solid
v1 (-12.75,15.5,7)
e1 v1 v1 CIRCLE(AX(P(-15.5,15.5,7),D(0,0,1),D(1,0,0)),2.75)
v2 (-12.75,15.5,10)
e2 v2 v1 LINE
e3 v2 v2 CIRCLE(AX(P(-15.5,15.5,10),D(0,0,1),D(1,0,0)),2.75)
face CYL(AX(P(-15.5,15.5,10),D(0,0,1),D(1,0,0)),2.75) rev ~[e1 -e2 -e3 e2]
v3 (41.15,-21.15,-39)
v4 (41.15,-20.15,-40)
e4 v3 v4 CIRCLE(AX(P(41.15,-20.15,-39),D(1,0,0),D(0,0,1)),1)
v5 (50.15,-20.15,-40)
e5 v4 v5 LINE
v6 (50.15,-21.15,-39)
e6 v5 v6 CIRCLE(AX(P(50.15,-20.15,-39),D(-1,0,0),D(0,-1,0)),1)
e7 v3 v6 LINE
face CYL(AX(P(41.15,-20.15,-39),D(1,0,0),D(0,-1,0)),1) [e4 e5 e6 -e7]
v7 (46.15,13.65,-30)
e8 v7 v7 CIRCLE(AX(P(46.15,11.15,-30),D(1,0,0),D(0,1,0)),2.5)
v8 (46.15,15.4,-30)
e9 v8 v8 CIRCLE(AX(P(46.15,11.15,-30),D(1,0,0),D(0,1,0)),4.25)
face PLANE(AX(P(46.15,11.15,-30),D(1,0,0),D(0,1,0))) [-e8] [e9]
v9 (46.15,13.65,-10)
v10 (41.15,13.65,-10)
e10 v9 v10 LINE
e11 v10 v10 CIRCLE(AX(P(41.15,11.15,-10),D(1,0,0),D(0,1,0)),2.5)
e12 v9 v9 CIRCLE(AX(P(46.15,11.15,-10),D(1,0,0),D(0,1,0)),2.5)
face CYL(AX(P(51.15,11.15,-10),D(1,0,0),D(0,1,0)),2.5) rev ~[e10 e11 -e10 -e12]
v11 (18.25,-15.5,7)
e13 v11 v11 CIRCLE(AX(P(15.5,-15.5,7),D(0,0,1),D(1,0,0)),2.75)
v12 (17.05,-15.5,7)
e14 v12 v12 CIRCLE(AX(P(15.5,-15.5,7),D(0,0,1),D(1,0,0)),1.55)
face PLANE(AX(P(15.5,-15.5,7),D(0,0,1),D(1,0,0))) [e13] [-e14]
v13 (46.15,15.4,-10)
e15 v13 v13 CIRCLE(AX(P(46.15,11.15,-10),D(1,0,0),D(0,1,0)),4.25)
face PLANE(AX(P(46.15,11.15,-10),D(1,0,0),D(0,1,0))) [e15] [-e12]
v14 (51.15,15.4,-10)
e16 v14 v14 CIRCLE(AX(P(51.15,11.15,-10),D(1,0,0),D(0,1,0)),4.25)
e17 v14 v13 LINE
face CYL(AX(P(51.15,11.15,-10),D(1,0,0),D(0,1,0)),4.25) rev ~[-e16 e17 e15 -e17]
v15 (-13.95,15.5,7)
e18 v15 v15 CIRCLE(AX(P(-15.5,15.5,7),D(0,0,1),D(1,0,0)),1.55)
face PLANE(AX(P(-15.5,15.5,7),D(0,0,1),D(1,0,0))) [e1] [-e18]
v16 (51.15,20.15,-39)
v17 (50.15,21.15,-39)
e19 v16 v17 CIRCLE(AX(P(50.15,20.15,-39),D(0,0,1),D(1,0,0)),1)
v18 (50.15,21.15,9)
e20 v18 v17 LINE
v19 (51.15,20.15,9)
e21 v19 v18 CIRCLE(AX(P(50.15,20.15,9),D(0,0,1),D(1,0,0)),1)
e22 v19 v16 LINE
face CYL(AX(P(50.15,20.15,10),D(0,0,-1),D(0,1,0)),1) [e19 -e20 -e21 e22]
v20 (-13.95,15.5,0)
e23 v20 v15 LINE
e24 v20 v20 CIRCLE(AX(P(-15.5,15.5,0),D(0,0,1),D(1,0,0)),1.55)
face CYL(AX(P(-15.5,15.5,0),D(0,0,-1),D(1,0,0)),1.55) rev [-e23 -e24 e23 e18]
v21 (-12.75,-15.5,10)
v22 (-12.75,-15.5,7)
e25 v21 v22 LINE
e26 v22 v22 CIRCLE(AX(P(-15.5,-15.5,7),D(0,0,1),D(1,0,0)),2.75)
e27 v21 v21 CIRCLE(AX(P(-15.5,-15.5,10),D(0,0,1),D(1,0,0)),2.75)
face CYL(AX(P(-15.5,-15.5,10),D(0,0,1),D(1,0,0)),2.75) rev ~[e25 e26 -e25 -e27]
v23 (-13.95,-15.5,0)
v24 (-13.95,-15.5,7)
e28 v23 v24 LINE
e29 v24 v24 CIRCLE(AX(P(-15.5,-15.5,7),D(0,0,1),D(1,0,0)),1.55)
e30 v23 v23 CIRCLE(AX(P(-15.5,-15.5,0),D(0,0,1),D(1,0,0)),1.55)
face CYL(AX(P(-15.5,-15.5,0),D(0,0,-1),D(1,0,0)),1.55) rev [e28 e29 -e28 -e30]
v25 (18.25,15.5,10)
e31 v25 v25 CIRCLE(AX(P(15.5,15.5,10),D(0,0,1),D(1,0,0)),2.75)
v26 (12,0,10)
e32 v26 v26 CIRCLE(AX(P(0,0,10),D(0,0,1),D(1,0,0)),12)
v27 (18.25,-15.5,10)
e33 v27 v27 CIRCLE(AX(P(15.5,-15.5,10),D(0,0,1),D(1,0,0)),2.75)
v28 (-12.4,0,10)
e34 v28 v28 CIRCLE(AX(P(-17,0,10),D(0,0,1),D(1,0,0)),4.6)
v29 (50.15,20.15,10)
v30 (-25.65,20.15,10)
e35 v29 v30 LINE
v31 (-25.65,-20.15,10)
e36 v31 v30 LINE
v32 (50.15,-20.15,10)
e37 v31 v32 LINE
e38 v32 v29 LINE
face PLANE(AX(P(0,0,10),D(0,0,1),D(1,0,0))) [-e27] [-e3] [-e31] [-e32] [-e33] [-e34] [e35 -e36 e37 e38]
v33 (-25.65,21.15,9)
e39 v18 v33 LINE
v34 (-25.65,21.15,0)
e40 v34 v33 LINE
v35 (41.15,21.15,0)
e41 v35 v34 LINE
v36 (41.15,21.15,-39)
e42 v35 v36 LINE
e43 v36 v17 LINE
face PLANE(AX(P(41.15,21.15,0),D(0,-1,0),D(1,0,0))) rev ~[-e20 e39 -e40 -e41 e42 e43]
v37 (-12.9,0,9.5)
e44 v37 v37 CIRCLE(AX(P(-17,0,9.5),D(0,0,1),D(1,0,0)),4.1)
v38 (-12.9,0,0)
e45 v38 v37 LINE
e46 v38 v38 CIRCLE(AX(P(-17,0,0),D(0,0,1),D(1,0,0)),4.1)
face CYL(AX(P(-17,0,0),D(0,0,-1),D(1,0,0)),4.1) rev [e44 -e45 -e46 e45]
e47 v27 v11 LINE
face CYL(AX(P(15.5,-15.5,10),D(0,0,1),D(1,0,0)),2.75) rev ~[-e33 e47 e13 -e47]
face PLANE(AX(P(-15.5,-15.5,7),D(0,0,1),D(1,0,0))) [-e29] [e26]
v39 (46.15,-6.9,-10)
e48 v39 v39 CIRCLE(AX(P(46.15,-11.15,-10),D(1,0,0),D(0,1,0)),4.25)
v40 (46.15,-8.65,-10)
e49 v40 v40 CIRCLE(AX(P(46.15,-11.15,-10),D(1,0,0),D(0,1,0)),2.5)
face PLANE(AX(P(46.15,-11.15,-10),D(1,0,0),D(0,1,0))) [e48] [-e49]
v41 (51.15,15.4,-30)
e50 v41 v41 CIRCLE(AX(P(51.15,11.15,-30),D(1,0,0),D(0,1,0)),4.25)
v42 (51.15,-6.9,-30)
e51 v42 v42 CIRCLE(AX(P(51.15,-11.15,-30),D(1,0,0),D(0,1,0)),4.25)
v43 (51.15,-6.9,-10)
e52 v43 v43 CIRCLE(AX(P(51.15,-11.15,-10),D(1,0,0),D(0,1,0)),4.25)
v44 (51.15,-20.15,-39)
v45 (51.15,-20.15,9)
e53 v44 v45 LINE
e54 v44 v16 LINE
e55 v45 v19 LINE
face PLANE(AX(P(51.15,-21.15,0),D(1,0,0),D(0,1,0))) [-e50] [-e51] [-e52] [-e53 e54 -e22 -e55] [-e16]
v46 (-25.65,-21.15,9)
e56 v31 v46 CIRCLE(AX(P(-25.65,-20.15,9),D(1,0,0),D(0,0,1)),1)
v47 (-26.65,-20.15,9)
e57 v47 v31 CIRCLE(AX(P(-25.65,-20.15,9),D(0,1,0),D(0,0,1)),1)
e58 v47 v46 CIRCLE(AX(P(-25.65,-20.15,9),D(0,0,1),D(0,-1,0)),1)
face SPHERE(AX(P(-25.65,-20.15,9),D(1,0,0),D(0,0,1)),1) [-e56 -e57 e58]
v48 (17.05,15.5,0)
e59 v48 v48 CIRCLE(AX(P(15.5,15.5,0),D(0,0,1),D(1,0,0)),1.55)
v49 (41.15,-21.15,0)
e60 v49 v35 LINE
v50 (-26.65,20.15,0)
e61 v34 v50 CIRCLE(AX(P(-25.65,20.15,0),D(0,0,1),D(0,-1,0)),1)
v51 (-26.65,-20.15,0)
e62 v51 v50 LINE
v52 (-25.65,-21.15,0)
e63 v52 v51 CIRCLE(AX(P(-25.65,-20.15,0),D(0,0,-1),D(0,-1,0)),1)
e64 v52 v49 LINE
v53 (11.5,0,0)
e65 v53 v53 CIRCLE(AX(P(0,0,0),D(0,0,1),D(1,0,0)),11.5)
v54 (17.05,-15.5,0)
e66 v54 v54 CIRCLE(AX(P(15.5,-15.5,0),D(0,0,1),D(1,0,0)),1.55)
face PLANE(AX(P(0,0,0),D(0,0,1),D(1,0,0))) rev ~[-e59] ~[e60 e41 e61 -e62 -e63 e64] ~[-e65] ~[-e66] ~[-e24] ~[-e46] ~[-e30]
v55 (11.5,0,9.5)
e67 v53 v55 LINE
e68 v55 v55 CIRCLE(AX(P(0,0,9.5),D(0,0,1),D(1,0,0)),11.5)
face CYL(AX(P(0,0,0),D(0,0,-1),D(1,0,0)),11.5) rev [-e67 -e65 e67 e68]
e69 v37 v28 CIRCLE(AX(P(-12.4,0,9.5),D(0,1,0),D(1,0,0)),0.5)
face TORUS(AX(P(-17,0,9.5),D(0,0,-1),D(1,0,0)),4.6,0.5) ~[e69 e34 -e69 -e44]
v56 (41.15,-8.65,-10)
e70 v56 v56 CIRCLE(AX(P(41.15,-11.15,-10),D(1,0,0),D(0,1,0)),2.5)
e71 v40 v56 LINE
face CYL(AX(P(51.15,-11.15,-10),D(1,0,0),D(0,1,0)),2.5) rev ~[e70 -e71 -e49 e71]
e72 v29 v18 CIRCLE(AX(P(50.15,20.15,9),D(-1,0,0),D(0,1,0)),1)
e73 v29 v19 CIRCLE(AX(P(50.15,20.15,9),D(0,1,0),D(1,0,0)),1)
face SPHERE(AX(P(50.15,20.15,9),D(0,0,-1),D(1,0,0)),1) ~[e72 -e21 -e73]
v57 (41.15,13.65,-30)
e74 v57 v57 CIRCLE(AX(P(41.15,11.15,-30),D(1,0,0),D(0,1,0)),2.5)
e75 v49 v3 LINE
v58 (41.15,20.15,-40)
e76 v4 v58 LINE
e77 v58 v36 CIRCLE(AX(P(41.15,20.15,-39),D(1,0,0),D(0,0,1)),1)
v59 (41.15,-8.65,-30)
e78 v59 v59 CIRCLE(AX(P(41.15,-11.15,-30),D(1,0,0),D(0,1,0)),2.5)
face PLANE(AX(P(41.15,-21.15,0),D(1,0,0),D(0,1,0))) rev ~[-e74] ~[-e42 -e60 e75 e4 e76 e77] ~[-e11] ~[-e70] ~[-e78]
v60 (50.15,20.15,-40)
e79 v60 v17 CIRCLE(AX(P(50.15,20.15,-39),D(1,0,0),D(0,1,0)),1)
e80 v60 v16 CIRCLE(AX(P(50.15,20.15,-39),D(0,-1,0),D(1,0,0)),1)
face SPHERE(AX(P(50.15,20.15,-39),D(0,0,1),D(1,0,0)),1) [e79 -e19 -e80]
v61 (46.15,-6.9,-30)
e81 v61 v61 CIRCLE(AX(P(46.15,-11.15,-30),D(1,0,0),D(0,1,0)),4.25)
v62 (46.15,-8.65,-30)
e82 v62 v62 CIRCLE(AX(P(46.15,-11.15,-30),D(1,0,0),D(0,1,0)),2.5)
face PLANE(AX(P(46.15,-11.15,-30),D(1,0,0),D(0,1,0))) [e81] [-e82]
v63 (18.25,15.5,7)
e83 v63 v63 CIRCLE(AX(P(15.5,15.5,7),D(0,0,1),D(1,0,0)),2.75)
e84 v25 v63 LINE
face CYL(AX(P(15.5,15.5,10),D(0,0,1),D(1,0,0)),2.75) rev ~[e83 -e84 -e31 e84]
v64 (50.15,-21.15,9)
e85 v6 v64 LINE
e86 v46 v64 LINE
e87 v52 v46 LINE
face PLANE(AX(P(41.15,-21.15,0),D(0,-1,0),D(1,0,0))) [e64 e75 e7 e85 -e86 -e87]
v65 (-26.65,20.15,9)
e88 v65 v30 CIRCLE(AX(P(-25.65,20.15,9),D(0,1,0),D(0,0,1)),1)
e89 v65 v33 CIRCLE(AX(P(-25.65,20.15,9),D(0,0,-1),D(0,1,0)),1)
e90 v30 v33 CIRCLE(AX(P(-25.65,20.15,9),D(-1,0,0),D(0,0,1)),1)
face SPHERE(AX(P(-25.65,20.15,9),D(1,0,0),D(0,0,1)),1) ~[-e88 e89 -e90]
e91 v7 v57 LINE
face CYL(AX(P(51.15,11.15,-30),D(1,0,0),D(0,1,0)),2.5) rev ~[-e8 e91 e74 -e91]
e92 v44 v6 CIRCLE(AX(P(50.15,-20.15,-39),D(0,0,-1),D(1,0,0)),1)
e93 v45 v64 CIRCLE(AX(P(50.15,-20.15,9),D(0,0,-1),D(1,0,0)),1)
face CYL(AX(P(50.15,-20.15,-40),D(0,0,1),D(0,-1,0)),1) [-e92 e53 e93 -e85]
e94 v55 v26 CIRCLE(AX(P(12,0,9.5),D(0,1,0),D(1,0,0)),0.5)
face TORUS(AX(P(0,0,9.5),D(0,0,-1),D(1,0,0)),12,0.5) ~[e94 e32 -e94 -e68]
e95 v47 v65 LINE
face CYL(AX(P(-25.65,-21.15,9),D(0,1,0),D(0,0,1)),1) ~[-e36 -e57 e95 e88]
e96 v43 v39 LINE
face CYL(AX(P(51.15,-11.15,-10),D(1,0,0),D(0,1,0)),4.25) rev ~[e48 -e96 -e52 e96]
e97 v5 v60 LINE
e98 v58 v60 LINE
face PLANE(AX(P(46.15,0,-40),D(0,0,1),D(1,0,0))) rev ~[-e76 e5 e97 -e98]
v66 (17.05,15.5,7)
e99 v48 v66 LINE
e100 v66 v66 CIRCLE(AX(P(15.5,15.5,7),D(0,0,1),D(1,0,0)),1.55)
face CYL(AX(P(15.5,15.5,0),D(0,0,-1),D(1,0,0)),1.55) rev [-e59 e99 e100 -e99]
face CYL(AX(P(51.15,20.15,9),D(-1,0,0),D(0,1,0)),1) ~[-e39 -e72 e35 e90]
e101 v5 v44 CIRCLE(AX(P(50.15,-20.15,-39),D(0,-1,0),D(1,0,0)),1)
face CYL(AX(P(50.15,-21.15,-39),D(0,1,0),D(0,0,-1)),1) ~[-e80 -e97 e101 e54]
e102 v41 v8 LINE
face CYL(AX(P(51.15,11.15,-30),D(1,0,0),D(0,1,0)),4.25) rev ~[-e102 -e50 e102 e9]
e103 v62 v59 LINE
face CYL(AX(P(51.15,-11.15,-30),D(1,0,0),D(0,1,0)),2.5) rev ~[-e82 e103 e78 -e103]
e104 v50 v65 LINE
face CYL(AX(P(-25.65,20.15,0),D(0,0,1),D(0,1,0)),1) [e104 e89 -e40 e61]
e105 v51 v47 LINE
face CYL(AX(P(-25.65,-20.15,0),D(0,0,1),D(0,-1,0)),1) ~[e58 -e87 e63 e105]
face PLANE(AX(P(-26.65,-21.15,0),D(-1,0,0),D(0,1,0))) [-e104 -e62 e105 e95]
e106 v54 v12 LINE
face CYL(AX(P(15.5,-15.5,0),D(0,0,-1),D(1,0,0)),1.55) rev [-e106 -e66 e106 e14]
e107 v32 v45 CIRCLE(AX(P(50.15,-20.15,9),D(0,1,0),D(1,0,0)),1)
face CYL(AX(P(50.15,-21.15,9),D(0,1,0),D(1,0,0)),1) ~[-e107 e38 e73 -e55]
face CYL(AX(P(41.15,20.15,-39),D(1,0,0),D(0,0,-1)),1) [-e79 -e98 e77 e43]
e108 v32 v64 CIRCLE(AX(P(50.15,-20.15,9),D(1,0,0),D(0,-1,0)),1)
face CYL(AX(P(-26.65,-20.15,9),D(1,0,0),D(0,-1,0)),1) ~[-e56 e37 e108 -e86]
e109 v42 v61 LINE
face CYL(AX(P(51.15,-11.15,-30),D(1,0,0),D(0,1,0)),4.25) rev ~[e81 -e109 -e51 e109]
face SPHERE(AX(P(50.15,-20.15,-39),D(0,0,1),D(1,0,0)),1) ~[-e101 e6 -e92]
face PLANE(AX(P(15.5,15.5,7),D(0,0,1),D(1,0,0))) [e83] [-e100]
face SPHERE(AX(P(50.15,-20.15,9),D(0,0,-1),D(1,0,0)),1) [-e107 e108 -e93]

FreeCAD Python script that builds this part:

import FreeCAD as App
import Part
import Sketcher


def edges_at(feature, points):
    """Names of the edges that pass closest to the given points."""
    edges = feature.Shape.Edges
    near = lambda p: min(range(len(edges)), key=lambda i: edges[i].distToShape(Part.Vertex(*p))[0])
    return sorted({f"Edge{near(p) + 1}" for p in points})


def add_polygon(sketch, points):
    """Adds a closed chain of lines whose ends are joined by coincident constraints."""
    first, n = sketch.GeometryCount, len(points)
    for a, b in zip(points, points[1:] + points[:1]):
        sketch.addGeometry(Part.LineSegment(App.Vector(*a, 0), App.Vector(*b, 0)), False)
    for i in range(n):
        sketch.addConstraint(Sketcher.Constraint("Coincident", first + i, 2, first + (i + 1) % n, 1))

doc = App.newDocument("Part")
body = doc.addObject("PartDesign::Body", "Body")

# Sketch on XY plane
sketch1 = body.newObject("Sketcher::SketchObject", "Sketch")
sketch1.AttachmentSupport = (doc.getObject("XY_Plane"), [""])
sketch1.MapMode = "FlatFace"
add_polygon(sketch1, [(-26.6, 21.1), (-26.6, -21.1), (51.1, -21.1), (51.1, 21.1)])  # lines 0-3
sketch1.addGeometry(Part.Circle(App.Vector(-15.5, -15.5, 0), App.Vector(0, 0, 1), 1.6), False)  # 4
sketch1.addGeometry(Part.Circle(App.Vector(15.5, -15.5, 0), App.Vector(0, 0, 1), 1.6), False)  # 5
sketch1.addGeometry(Part.Circle(App.Vector(-17, 0, 0), App.Vector(0, 0, 1), 4.1), False)  # 6
sketch1.addGeometry(Part.Circle(App.Vector(-15.5, 15.5, 0), App.Vector(0, 0, 1), 1.6), False)  # 7
sketch1.addGeometry(Part.Circle(App.Vector(0, 0, 0), App.Vector(0, 0, 1), 11.5), False)  # 8
sketch1.addGeometry(Part.Circle(App.Vector(15.5, 15.5, 0), App.Vector(0, 0, 1), 1.6), False)  # 9
sketch1.addConstraint([
    Sketcher.Constraint("Vertical", 0),
    Sketcher.Constraint("Horizontal", 1),
    Sketcher.Constraint("Vertical", 2),
    Sketcher.Constraint("Horizontal", 3),
    Sketcher.Constraint("Coincident", 8, 3, -1, 1),
    Sketcher.Constraint("Equal", 4, 5),
    Sketcher.Constraint("Equal", 5, 7),
    Sketcher.Constraint("Equal", 7, 9),
    Sketcher.Constraint("Symmetric", 5, 3, 7, 3, -1, 1),
    Sketcher.Constraint("Symmetric", 4, 3, 9, 3, -1, 1),
    Sketcher.Constraint("Symmetric", 4, 3, 5, 3, -2),
    Sketcher.Constraint("PointOnObject", 6, 3, -1),
    Sketcher.Constraint("Diameter", 8, 23.0),
    Sketcher.Constraint("Diameter", 4, 3.1),
    Sketcher.Constraint("Diameter", 6, 8.2),
    Sketcher.Constraint("DistanceX", 1, 1, 1, 2, 77.8),
    Sketcher.Constraint("DistanceY", 0, 2, 0, 1, 42.3),
    Sketcher.Constraint("DistanceX", 6, 3, -1, 1, 17.0),
    Sketcher.Constraint("DistanceX", 4, 3, 5, 3, 31.0),
    Sketcher.Constraint("DistanceY", 4, 3, 7, 3, 31.0),
    Sketcher.Constraint("DistanceX", 0, 2, -1, 1, 26.65),
    Sketcher.Constraint("DistanceY", 0, 2, -1, 1, 21.15),
])
pad1 = body.newObject("PartDesign::Pad", "Pad")
pad1.Profile = sketch1
pad1.Length = 10

# Sketch on XY plane
sketch2 = body.newObject("Sketcher::SketchObject", "Sketch001")
sketch2.AttachmentSupport = (doc.getObject("XY_Plane"), [""])
sketch2.MapMode = "FlatFace"
add_polygon(sketch2, [(41, 21), (41, -21), (51, -21), (51, 21)])  # lines 0-3
sketch2.addConstraint([
    Sketcher.Constraint("Vertical", 0),
    Sketcher.Constraint("Horizontal", 1),
    Sketcher.Constraint("Vertical", 2),
    Sketcher.Constraint("Horizontal", 3),
    Sketcher.Constraint("DistanceX", 1, 1, 1, 2, 10.0),
    Sketcher.Constraint("DistanceY", 0, 2, 0, 1, 42.3),
    Sketcher.Constraint("DistanceX", -1, 1, 0, 2, 41.15),
    Sketcher.Constraint("DistanceY", 0, 2, -1, 1, 21.15),
])
pad2 = body.newObject("PartDesign::Pad", "Pad001")
pad2.Profile = sketch2
pad2.Length = 40
pad2.Reversed = True

# Sketch on YZ plane
sketch3 = body.newObject("Sketcher::SketchObject", "Sketch002")
sketch3.AttachmentSupport = (doc.getObject("YZ_Plane"), [""])
sketch3.MapMode = "FlatFace"
sketch3.AttachmentOffset = App.Placement(App.Vector(0, 0, 51.15), App.Rotation())
sketch3.addGeometry([
    Part.Circle(App.Vector(-11.2, -10, 0), App.Vector(0, 0, 1), 2.5),
    Part.Circle(App.Vector(11.2, -10, 0), App.Vector(0, 0, 1), 2.5),
    Part.Circle(App.Vector(11.2, -30, 0), App.Vector(0, 0, 1), 2.5),
    Part.Circle(App.Vector(-11.2, -30, 0), App.Vector(0, 0, 1), 2.5),
], False)
sketch3.addConstraint([
    Sketcher.Constraint("Equal", 0, 1),
    Sketcher.Constraint("Equal", 1, 2),
    Sketcher.Constraint("Equal", 2, 3),
    Sketcher.Constraint("Symmetric", 0, 3, 1, 3, -2),
    Sketcher.Constraint("Symmetric", 2, 3, 3, 3, -2),
    Sketcher.Constraint("Vertical", 1, 3, 2, 3),
    Sketcher.Constraint("Diameter", 0, 5.0),
    Sketcher.Constraint("DistanceY", 0, 3, -1, 1, 10.0),
    Sketcher.Constraint("DistanceY", 2, 3, -1, 1, 30.0),
    Sketcher.Constraint("DistanceX", 0, 3, 1, 3, 22.3),
])
pocket1 = body.newObject("PartDesign::Pocket", "Pocket")
pocket1.Profile = sketch3
pocket1.Type = "ThroughAll"

# Sketch on YZ plane
sketch4 = body.newObject("Sketcher::SketchObject", "Sketch003")
sketch4.AttachmentSupport = (doc.getObject("YZ_Plane"), [""])
sketch4.MapMode = "FlatFace"
sketch4.AttachmentOffset = App.Placement(App.Vector(0, 0, 51.15), App.Rotation())
sketch4.addGeometry([
    Part.Circle(App.Vector(-11.2, -10, 0), App.Vector(0, 0, 1), 4.2),  # 0
    Part.Circle(App.Vector(-11.2, -10, 0), App.Vector(0, 0, 1), 2.5),  # 1
    Part.Circle(App.Vector(11.2, -10, 0), App.Vector(0, 0, 1), 4.2),  # 2
    Part.Circle(App.Vector(11.2, -10, 0), App.Vector(0, 0, 1), 2.5),  # 3
    Part.Circle(App.Vector(11.2, -30, 0), App.Vector(0, 0, 1), 4.2),  # 4
    Part.Circle(App.Vector(11.2, -30, 0), App.Vector(0, 0, 1), 2.5),  # 5
    Part.Circle(App.Vector(-11.2, -30, 0), App.Vector(0, 0, 1), 4.2),  # 6
    Part.Circle(App.Vector(-11.2, -30, 0), App.Vector(0, 0, 1), 2.5),  # 7
], False)
sketch4.addConstraint([
    Sketcher.Constraint("Coincident", 1, 3, 0, 3),
    Sketcher.Constraint("Coincident", 3, 3, 2, 3),
    Sketcher.Constraint("Coincident", 5, 3, 4, 3),
    Sketcher.Constraint("Coincident", 7, 3, 6, 3),
    Sketcher.Constraint("Equal", 0, 2),
    Sketcher.Constraint("Equal", 1, 3),
    Sketcher.Constraint("Equal", 2, 4),
    Sketcher.Constraint("Equal", 3, 5),
    Sketcher.Constraint("Equal", 4, 6),
    Sketcher.Constraint("Equal", 5, 7),
    Sketcher.Constraint("Symmetric", 0, 3, 2, 3, -2),
    Sketcher.Constraint("Symmetric", 4, 3, 6, 3, -2),
    Sketcher.Constraint("Vertical", 3, 3, 4, 3),
    Sketcher.Constraint("Diameter", 1, 5.0),
    Sketcher.Constraint("Diameter", 0, 8.5),
    Sketcher.Constraint("DistanceY", 0, 3, -1, 1, 10.0),
    Sketcher.Constraint("DistanceY", 4, 3, -1, 1, 30.0),
    Sketcher.Constraint("DistanceX", 0, 3, 2, 3, 22.3),
])
pocket2 = body.newObject("PartDesign::Pocket", "Pocket001")
pocket2.Profile = sketch4
pocket2.Length = 5
doc.recompute()

fillet = body.newObject("PartDesign::Fillet", "Fillet")
fillet.Base = (pocket2, edges_at(pocket2, [
    (51.15, -21.15, -15),
    (51.15, 21.15, -15),
    (51.15, 0, -40),
    (51.15, 0, 10),
    (12.25, 21.15, 10),
    (12.25, -21.15, 10),
    (-26.65, 0, 10),
    (-26.65, 21.15, 5),
    (-26.65, -21.15, 5),
    (46.15, 21.15, -40),
    (46.15, -21.15, -40),
]))
fillet.Radius = 1
doc.recompute()

fillet2 = body.newObject("PartDesign::Fillet", "Fillet001")
fillet2.Base = (fillet, edges_at(fillet, [(-21.1, 0, 10), (-11.5, 0, 10)]))
fillet2.Radius = 0.5

# Sketch on XY plane
sketch5 = body.newObject("Sketcher::SketchObject", "Sketch004")
sketch5.AttachmentSupport = (doc.getObject("XY_Plane"), [""])
sketch5.MapMode = "FlatFace"
sketch5.AttachmentOffset = App.Placement(App.Vector(0, 0, 10), App.Rotation())
sketch5.addGeometry([
    Part.Circle(App.Vector(15.5, 15.5, 0), App.Vector(0, 0, 1), 2.8),  # 0
    Part.Circle(App.Vector(15.5, 15.5, 0), App.Vector(0, 0, 1), 1.6),  # 1
    Part.Circle(App.Vector(15.5, -15.5, 0), App.Vector(0, 0, 1), 2.8),  # 2
    Part.Circle(App.Vector(15.5, -15.5, 0), App.Vector(0, 0, 1), 1.6),  # 3
    Part.Circle(App.Vector(-15.5, -15.5, 0), App.Vector(0, 0, 1), 2.8),  # 4
    Part.Circle(App.Vector(-15.5, -15.5, 0), App.Vector(0, 0, 1), 1.6),  # 5
    Part.Circle(App.Vector(-15.5, 15.5, 0), App.Vector(0, 0, 1), 2.8),  # 6
    Part.Circle(App.Vector(-15.5, 15.5, 0), App.Vector(0, 0, 1), 1.6),  # 7
], False)
sketch5.addConstraint([
    Sketcher.Constraint("Coincident", 1, 3, 0, 3),
    Sketcher.Constraint("Coincident", 3, 3, 2, 3),
    Sketcher.Constraint("Coincident", 5, 3, 4, 3),
    Sketcher.Constraint("Coincident", 7, 3, 6, 3),
    Sketcher.Constraint("Equal", 0, 2),
    Sketcher.Constraint("Equal", 1, 3),
    Sketcher.Constraint("Equal", 2, 4),
    Sketcher.Constraint("Equal", 3, 5),
    Sketcher.Constraint("Equal", 4, 6),
    Sketcher.Constraint("Equal", 5, 7),
    Sketcher.Constraint("Symmetric", 0, 3, 4, 3, -1, 1),
    Sketcher.Constraint("Symmetric", 2, 3, 6, 3, -1, 1),
    Sketcher.Constraint("Symmetric", 2, 3, 4, 3, -2),
    Sketcher.Constraint("Diameter", 0, 5.5),
    Sketcher.Constraint("Diameter", 1, 3.1),
    Sketcher.Constraint("DistanceY", 2, 3, 0, 3, 31.0),
    Sketcher.Constraint("DistanceX", 4, 3, 2, 3, 31.0),
])
pocket3 = body.newObject("PartDesign::Pocket", "Pocket002")
pocket3.Profile = sketch5
pocket3.Length = 3

doc.recompute()
